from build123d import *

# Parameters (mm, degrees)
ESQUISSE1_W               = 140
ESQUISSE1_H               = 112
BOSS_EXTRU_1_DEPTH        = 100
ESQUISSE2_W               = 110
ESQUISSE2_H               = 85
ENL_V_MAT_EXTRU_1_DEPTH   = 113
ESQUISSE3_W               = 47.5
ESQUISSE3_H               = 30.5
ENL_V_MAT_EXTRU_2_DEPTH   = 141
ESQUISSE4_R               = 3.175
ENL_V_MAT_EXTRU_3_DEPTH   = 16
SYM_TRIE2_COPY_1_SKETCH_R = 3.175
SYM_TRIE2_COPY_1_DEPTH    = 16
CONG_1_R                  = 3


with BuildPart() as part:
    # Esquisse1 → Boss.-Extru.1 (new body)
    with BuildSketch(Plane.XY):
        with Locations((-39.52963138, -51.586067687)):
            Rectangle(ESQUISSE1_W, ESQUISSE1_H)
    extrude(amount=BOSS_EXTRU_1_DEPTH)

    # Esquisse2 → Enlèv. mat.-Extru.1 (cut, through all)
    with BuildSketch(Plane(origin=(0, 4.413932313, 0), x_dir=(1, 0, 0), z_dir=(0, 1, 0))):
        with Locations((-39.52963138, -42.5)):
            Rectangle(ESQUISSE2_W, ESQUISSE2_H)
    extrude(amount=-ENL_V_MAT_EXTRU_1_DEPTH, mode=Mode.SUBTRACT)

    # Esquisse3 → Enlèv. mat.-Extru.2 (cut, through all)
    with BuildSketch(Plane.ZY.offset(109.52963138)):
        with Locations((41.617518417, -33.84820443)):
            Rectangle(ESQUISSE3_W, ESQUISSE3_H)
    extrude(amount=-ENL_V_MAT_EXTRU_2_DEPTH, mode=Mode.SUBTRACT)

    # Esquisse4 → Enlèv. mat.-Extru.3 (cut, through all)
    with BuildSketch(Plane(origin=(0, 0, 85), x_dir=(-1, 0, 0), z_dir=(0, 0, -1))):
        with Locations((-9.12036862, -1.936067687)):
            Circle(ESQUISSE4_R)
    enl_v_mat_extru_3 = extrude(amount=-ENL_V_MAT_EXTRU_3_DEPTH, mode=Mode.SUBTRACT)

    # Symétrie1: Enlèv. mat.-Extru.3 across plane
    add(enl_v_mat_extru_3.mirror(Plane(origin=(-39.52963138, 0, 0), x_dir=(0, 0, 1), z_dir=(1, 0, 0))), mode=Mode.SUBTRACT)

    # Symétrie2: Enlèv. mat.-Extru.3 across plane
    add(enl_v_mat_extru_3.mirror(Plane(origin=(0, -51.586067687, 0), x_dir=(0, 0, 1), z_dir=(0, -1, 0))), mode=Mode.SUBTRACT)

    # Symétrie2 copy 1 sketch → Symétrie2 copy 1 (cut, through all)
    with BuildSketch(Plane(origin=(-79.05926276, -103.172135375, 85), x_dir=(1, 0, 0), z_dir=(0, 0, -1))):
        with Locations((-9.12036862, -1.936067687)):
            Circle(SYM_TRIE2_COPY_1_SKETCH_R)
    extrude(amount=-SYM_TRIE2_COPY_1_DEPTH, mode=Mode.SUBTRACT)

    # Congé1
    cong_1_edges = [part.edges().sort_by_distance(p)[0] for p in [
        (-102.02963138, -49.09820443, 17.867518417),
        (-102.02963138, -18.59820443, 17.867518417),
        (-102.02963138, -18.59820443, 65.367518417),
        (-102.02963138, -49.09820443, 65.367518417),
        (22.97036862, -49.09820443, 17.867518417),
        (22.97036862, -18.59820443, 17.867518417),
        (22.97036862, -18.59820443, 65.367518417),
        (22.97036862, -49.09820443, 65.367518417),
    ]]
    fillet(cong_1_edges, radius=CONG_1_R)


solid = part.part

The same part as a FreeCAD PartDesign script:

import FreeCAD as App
import Part
import Sketcher
Q = App.Units.Quantity


def edges_at(feature, points):
    """Names of the edges that pass closest to the given points."""
    edges = feature.Shape.Edges
    near = lambda p: min(range(len(edges)), key=lambda i: edges[i].distToShape(Part.Vertex(*p))[0])
    return sorted({f"Edge{near(p) + 1}" for p in points})

doc = App.newDocument("Part")
body = doc.addObject("PartDesign::Body", "Body")

sketch1 = body.newObject("Sketcher::SketchObject", "Sketch")
sketch1.AttachmentSupport = (doc.getObject("XY_Plane"), [""])
sketch1.MapMode = "FlatFace"
sketch1.addGeometry([
    Part.LineSegment(App.Vector(-109.529631, 4.413932, 0), App.Vector(-109.529631, -107.586068, 0)),
    Part.LineSegment(App.Vector(-109.529631, -107.586068, 0), App.Vector(30.470369, -107.586068, 0)),
    Part.LineSegment(App.Vector(30.470369, -107.586068, 0), App.Vector(30.470369, 4.413932, 0)),
    Part.LineSegment(App.Vector(30.470369, 4.413932, 0), App.Vector(-109.529631, 4.413932, 0)),
], False)
sketch1.addConstraint([
    Sketcher.Constraint("Coincident", 0, 2, 1, 1),
    Sketcher.Constraint("Coincident", 1, 2, 2, 1),
    Sketcher.Constraint("Coincident", 2, 2, 3, 1),
    Sketcher.Constraint("Coincident", 3, 2, 0, 1),
    Sketcher.Constraint("Vertical", 0),
    Sketcher.Constraint("Horizontal", 1),
    Sketcher.Constraint("Vertical", 2),
    Sketcher.Constraint("Horizontal", 3),
    Sketcher.Constraint("DistanceX", 1, 1, 1, 2, Q("140 mm")),
    Sketcher.Constraint("DistanceY", 0, 2, 0, 1, Q("112 mm")),
    Sketcher.Constraint("DistanceX", 0, 2, -1, 1, Q("109.529631 mm")),
    Sketcher.Constraint("DistanceY", 0, 2, -1, 1, Q("107.586068 mm")),
])
pad1 = body.newObject("PartDesign::Pad", "Pad")
pad1.Profile = sketch1
pad1.Length = 100

sketch2 = body.newObject("Sketcher::SketchObject", "Sketch001")
sketch2.AttachmentSupport = (doc.getObject("XZ_Plane"), [""])
sketch2.MapMode = "FlatFace"
sketch2.AttachmentOffset = App.Placement(App.Vector(0, 0, -4.413932), App.Rotation())
sketch2.addGeometry([
    Part.LineSegment(App.Vector(-94.529631, 0, 0), App.Vector(-94.529631, 85, 0)),
    Part.LineSegment(App.Vector(-94.529631, 85, 0), App.Vector(15.470369, 85, 0)),
    Part.LineSegment(App.Vector(15.470369, 85, 0), App.Vector(15.470369, 0, 0)),
    Part.LineSegment(App.Vector(15.470369, 0, 0), App.Vector(-94.529631, 0, 0)),
], False)
sketch2.addConstraint([
    Sketcher.Constraint("Coincident", 0, 2, 1, 1),
    Sketcher.Constraint("Coincident", 1, 2, 2, 1),
    Sketcher.Constraint("Coincident", 2, 2, 3, 1),
    Sketcher.Constraint("Coincident", 3, 2, 0, 1),
    Sketcher.Constraint("Vertical", 0),
    Sketcher.Constraint("Horizontal", 1),
    Sketcher.Constraint("Vertical", 2),
    Sketcher.Constraint("Horizontal", 3),
    Sketcher.Constraint("PointOnObject", 2, 2, -1),
    Sketcher.Constraint("DistanceX", 1, 1, 1, 2, Q("110 mm")),
    Sketcher.Constraint("DistanceY", 0, 1, 0, 2, Q("85 mm")),
    Sketcher.Constraint("DistanceX", 0, 2, -1, 1, Q("94.529631 mm")),
])
pocket1 = body.newObject("PartDesign::Pocket", "Pocket")
pocket1.Profile = sketch2
pocket1.Type = "ThroughAll"
pocket1.Reversed = True

sketch3 = body.newObject("Sketcher::SketchObject", "Sketch002")
sketch3.AttachmentSupport = (doc.getObject("YZ_Plane"), [""])
sketch3.MapMode = "FlatFace"
sketch3.AttachmentOffset = App.Placement(App.Vector(0, 0, -109.529631), App.Rotation())
sketch3.addGeometry([
    Part.LineSegment(App.Vector(-18.598204, 17.867518, 0), App.Vector(-49.098204, 17.867518, 0)),
    Part.LineSegment(App.Vector(-49.098204, 17.867518, 0), App.Vector(-49.098204, 65.367518, 0)),
    Part.LineSegment(App.Vector(-49.098204, 65.367518, 0), App.Vector(-18.598204, 65.367518, 0)),
    Part.LineSegment(App.Vector(-18.598204, 65.367518, 0), App.Vector(-18.598204, 17.867518, 0)),
], False)
sketch3.addConstraint([
    Sketcher.Constraint("Coincident", 0, 2, 1, 1),
    Sketcher.Constraint("Coincident", 1, 2, 2, 1),
    Sketcher.Constraint("Coincident", 2, 2, 3, 1),
    Sketcher.Constraint("Coincident", 3, 2, 0, 1),
    Sketcher.Constraint("Horizontal", 0),
    Sketcher.Constraint("Vertical", 1),
    Sketcher.Constraint("Horizontal", 2),
    Sketcher.Constraint("Vertical", 3),
    Sketcher.Constraint("DistanceX", 0, 2, 0, 1, Q("30.5 mm")),
    Sketcher.Constraint("DistanceY", 1, 1, 1, 2, Q("47.5 mm")),
    Sketcher.Constraint("DistanceY", -1, 1, 0, 2, Q("17.867518 mm")),
    Sketcher.Constraint("DistanceX", 0, 2, -1, 1, Q("49.098204 mm")),
])
pocket2 = body.newObject("PartDesign::Pocket", "Pocket001")
pocket2.Profile = sketch3
pocket2.Type = "ThroughAll"
pocket2.Reversed = True

sketch4 = body.newObject("Sketcher::SketchObject", "Sketch003")
sketch4.AttachmentSupport = (doc.getObject("XY_Plane"), [""])
sketch4.MapMode = "FlatFace"
sketch4.AttachmentOffset = App.Placement(App.Vector(0, 0, 85), App.Rotation())
sketch4.addGeometry(Part.Circle(App.Vector(9.120369, -1.936068, 0), App.Vector(0, 0, 1), 3.175), False)
sketch4.addConstraint([
    Sketcher.Constraint("Diameter", 0, Q("6.35 mm")),
    Sketcher.Constraint("DistanceX", -1, 1, 0, 3, Q("9.120369 mm")),
    Sketcher.Constraint("DistanceY", 0, 3, -1, 1, Q("1.936068 mm")),
])
pocket3 = body.newObject("PartDesign::Pocket", "Pocket002")
pocket3.Profile = sketch4
pocket3.Type = "ThroughAll"
pocket3.Reversed = True
doc.recompute()

datumplane = body.newObject("PartDesign::Plane", "DatumPlane")
datumplane.AttachmentSupport = (doc.getObject("YZ_Plane"), [""])
datumplane.MapMode = "FlatFace"
datumplane.AttachmentOffset = App.Placement(App.Vector(0, 0, -39.529631), App.Rotation())
mirrored = body.newObject("PartDesign::Mirrored", "Mirrored")
mirrored.Originals = [pocket3]
mirrored.MirrorPlane = (datumplane, [""])
body.Tip = mirrored
doc.recompute()

datumplane2 = body.newObject("PartDesign::Plane", "DatumPlane001")
datumplane2.AttachmentSupport = (doc.getObject("XZ_Plane"), [""])
datumplane2.MapMode = "FlatFace"
datumplane2.AttachmentOffset = App.Placement(App.Vector(0, 0, 51.586068), App.Rotation())
mirrored2 = body.newObject("PartDesign::Mirrored", "Mirrored001")
mirrored2.Originals = [pocket3]
mirrored2.MirrorPlane = (datumplane2, [""])
body.Tip = mirrored2

sketch5 = body.newObject("Sketcher::SketchObject", "Sketch004")
sketch5.AttachmentSupport = (doc.getObject("XY_Plane"), [""])
sketch5.MapMode = "FlatFace"
sketch5.AttachmentOffset = App.Placement(App.Vector(0, 0, 85), App.Rotation())
sketch5.addGeometry(Part.Circle(App.Vector(-88.179631, -101.236068, 0), App.Vector(0, 0, 1), 3.175), False)
sketch5.addConstraint([
    Sketcher.Constraint("Diameter", 0, Q("6.35 mm")),
    Sketcher.Constraint("DistanceX", 0, 3, -1, 1, Q("88.179631 mm")),
    Sketcher.Constraint("DistanceY", 0, 3, -1, 1, Q("101.236068 mm")),
])
pocket4 = body.newObject("PartDesign::Pocket", "Pocket003")
pocket4.Profile = sketch5
pocket4.Type = "ThroughAll"
pocket4.Reversed = True
doc.recompute()

fillet = body.newObject("PartDesign::Fillet", "Fillet")
fillet.Base = (pocket4, edges_at(pocket4, [
    (-102.03, -49.098, 17.868),
    (-102.03, -18.598, 17.868),
    (-102.03, -18.598, 65.368),
    (-102.03, -49.098, 65.368),
    (22.97, -49.098, 17.868),
    (22.97, -18.598, 17.868),
    (22.97, -18.598, 65.368),
    (22.97, -49.098, 65.368),
]))
fillet.Radius = 3

doc.recompute()
